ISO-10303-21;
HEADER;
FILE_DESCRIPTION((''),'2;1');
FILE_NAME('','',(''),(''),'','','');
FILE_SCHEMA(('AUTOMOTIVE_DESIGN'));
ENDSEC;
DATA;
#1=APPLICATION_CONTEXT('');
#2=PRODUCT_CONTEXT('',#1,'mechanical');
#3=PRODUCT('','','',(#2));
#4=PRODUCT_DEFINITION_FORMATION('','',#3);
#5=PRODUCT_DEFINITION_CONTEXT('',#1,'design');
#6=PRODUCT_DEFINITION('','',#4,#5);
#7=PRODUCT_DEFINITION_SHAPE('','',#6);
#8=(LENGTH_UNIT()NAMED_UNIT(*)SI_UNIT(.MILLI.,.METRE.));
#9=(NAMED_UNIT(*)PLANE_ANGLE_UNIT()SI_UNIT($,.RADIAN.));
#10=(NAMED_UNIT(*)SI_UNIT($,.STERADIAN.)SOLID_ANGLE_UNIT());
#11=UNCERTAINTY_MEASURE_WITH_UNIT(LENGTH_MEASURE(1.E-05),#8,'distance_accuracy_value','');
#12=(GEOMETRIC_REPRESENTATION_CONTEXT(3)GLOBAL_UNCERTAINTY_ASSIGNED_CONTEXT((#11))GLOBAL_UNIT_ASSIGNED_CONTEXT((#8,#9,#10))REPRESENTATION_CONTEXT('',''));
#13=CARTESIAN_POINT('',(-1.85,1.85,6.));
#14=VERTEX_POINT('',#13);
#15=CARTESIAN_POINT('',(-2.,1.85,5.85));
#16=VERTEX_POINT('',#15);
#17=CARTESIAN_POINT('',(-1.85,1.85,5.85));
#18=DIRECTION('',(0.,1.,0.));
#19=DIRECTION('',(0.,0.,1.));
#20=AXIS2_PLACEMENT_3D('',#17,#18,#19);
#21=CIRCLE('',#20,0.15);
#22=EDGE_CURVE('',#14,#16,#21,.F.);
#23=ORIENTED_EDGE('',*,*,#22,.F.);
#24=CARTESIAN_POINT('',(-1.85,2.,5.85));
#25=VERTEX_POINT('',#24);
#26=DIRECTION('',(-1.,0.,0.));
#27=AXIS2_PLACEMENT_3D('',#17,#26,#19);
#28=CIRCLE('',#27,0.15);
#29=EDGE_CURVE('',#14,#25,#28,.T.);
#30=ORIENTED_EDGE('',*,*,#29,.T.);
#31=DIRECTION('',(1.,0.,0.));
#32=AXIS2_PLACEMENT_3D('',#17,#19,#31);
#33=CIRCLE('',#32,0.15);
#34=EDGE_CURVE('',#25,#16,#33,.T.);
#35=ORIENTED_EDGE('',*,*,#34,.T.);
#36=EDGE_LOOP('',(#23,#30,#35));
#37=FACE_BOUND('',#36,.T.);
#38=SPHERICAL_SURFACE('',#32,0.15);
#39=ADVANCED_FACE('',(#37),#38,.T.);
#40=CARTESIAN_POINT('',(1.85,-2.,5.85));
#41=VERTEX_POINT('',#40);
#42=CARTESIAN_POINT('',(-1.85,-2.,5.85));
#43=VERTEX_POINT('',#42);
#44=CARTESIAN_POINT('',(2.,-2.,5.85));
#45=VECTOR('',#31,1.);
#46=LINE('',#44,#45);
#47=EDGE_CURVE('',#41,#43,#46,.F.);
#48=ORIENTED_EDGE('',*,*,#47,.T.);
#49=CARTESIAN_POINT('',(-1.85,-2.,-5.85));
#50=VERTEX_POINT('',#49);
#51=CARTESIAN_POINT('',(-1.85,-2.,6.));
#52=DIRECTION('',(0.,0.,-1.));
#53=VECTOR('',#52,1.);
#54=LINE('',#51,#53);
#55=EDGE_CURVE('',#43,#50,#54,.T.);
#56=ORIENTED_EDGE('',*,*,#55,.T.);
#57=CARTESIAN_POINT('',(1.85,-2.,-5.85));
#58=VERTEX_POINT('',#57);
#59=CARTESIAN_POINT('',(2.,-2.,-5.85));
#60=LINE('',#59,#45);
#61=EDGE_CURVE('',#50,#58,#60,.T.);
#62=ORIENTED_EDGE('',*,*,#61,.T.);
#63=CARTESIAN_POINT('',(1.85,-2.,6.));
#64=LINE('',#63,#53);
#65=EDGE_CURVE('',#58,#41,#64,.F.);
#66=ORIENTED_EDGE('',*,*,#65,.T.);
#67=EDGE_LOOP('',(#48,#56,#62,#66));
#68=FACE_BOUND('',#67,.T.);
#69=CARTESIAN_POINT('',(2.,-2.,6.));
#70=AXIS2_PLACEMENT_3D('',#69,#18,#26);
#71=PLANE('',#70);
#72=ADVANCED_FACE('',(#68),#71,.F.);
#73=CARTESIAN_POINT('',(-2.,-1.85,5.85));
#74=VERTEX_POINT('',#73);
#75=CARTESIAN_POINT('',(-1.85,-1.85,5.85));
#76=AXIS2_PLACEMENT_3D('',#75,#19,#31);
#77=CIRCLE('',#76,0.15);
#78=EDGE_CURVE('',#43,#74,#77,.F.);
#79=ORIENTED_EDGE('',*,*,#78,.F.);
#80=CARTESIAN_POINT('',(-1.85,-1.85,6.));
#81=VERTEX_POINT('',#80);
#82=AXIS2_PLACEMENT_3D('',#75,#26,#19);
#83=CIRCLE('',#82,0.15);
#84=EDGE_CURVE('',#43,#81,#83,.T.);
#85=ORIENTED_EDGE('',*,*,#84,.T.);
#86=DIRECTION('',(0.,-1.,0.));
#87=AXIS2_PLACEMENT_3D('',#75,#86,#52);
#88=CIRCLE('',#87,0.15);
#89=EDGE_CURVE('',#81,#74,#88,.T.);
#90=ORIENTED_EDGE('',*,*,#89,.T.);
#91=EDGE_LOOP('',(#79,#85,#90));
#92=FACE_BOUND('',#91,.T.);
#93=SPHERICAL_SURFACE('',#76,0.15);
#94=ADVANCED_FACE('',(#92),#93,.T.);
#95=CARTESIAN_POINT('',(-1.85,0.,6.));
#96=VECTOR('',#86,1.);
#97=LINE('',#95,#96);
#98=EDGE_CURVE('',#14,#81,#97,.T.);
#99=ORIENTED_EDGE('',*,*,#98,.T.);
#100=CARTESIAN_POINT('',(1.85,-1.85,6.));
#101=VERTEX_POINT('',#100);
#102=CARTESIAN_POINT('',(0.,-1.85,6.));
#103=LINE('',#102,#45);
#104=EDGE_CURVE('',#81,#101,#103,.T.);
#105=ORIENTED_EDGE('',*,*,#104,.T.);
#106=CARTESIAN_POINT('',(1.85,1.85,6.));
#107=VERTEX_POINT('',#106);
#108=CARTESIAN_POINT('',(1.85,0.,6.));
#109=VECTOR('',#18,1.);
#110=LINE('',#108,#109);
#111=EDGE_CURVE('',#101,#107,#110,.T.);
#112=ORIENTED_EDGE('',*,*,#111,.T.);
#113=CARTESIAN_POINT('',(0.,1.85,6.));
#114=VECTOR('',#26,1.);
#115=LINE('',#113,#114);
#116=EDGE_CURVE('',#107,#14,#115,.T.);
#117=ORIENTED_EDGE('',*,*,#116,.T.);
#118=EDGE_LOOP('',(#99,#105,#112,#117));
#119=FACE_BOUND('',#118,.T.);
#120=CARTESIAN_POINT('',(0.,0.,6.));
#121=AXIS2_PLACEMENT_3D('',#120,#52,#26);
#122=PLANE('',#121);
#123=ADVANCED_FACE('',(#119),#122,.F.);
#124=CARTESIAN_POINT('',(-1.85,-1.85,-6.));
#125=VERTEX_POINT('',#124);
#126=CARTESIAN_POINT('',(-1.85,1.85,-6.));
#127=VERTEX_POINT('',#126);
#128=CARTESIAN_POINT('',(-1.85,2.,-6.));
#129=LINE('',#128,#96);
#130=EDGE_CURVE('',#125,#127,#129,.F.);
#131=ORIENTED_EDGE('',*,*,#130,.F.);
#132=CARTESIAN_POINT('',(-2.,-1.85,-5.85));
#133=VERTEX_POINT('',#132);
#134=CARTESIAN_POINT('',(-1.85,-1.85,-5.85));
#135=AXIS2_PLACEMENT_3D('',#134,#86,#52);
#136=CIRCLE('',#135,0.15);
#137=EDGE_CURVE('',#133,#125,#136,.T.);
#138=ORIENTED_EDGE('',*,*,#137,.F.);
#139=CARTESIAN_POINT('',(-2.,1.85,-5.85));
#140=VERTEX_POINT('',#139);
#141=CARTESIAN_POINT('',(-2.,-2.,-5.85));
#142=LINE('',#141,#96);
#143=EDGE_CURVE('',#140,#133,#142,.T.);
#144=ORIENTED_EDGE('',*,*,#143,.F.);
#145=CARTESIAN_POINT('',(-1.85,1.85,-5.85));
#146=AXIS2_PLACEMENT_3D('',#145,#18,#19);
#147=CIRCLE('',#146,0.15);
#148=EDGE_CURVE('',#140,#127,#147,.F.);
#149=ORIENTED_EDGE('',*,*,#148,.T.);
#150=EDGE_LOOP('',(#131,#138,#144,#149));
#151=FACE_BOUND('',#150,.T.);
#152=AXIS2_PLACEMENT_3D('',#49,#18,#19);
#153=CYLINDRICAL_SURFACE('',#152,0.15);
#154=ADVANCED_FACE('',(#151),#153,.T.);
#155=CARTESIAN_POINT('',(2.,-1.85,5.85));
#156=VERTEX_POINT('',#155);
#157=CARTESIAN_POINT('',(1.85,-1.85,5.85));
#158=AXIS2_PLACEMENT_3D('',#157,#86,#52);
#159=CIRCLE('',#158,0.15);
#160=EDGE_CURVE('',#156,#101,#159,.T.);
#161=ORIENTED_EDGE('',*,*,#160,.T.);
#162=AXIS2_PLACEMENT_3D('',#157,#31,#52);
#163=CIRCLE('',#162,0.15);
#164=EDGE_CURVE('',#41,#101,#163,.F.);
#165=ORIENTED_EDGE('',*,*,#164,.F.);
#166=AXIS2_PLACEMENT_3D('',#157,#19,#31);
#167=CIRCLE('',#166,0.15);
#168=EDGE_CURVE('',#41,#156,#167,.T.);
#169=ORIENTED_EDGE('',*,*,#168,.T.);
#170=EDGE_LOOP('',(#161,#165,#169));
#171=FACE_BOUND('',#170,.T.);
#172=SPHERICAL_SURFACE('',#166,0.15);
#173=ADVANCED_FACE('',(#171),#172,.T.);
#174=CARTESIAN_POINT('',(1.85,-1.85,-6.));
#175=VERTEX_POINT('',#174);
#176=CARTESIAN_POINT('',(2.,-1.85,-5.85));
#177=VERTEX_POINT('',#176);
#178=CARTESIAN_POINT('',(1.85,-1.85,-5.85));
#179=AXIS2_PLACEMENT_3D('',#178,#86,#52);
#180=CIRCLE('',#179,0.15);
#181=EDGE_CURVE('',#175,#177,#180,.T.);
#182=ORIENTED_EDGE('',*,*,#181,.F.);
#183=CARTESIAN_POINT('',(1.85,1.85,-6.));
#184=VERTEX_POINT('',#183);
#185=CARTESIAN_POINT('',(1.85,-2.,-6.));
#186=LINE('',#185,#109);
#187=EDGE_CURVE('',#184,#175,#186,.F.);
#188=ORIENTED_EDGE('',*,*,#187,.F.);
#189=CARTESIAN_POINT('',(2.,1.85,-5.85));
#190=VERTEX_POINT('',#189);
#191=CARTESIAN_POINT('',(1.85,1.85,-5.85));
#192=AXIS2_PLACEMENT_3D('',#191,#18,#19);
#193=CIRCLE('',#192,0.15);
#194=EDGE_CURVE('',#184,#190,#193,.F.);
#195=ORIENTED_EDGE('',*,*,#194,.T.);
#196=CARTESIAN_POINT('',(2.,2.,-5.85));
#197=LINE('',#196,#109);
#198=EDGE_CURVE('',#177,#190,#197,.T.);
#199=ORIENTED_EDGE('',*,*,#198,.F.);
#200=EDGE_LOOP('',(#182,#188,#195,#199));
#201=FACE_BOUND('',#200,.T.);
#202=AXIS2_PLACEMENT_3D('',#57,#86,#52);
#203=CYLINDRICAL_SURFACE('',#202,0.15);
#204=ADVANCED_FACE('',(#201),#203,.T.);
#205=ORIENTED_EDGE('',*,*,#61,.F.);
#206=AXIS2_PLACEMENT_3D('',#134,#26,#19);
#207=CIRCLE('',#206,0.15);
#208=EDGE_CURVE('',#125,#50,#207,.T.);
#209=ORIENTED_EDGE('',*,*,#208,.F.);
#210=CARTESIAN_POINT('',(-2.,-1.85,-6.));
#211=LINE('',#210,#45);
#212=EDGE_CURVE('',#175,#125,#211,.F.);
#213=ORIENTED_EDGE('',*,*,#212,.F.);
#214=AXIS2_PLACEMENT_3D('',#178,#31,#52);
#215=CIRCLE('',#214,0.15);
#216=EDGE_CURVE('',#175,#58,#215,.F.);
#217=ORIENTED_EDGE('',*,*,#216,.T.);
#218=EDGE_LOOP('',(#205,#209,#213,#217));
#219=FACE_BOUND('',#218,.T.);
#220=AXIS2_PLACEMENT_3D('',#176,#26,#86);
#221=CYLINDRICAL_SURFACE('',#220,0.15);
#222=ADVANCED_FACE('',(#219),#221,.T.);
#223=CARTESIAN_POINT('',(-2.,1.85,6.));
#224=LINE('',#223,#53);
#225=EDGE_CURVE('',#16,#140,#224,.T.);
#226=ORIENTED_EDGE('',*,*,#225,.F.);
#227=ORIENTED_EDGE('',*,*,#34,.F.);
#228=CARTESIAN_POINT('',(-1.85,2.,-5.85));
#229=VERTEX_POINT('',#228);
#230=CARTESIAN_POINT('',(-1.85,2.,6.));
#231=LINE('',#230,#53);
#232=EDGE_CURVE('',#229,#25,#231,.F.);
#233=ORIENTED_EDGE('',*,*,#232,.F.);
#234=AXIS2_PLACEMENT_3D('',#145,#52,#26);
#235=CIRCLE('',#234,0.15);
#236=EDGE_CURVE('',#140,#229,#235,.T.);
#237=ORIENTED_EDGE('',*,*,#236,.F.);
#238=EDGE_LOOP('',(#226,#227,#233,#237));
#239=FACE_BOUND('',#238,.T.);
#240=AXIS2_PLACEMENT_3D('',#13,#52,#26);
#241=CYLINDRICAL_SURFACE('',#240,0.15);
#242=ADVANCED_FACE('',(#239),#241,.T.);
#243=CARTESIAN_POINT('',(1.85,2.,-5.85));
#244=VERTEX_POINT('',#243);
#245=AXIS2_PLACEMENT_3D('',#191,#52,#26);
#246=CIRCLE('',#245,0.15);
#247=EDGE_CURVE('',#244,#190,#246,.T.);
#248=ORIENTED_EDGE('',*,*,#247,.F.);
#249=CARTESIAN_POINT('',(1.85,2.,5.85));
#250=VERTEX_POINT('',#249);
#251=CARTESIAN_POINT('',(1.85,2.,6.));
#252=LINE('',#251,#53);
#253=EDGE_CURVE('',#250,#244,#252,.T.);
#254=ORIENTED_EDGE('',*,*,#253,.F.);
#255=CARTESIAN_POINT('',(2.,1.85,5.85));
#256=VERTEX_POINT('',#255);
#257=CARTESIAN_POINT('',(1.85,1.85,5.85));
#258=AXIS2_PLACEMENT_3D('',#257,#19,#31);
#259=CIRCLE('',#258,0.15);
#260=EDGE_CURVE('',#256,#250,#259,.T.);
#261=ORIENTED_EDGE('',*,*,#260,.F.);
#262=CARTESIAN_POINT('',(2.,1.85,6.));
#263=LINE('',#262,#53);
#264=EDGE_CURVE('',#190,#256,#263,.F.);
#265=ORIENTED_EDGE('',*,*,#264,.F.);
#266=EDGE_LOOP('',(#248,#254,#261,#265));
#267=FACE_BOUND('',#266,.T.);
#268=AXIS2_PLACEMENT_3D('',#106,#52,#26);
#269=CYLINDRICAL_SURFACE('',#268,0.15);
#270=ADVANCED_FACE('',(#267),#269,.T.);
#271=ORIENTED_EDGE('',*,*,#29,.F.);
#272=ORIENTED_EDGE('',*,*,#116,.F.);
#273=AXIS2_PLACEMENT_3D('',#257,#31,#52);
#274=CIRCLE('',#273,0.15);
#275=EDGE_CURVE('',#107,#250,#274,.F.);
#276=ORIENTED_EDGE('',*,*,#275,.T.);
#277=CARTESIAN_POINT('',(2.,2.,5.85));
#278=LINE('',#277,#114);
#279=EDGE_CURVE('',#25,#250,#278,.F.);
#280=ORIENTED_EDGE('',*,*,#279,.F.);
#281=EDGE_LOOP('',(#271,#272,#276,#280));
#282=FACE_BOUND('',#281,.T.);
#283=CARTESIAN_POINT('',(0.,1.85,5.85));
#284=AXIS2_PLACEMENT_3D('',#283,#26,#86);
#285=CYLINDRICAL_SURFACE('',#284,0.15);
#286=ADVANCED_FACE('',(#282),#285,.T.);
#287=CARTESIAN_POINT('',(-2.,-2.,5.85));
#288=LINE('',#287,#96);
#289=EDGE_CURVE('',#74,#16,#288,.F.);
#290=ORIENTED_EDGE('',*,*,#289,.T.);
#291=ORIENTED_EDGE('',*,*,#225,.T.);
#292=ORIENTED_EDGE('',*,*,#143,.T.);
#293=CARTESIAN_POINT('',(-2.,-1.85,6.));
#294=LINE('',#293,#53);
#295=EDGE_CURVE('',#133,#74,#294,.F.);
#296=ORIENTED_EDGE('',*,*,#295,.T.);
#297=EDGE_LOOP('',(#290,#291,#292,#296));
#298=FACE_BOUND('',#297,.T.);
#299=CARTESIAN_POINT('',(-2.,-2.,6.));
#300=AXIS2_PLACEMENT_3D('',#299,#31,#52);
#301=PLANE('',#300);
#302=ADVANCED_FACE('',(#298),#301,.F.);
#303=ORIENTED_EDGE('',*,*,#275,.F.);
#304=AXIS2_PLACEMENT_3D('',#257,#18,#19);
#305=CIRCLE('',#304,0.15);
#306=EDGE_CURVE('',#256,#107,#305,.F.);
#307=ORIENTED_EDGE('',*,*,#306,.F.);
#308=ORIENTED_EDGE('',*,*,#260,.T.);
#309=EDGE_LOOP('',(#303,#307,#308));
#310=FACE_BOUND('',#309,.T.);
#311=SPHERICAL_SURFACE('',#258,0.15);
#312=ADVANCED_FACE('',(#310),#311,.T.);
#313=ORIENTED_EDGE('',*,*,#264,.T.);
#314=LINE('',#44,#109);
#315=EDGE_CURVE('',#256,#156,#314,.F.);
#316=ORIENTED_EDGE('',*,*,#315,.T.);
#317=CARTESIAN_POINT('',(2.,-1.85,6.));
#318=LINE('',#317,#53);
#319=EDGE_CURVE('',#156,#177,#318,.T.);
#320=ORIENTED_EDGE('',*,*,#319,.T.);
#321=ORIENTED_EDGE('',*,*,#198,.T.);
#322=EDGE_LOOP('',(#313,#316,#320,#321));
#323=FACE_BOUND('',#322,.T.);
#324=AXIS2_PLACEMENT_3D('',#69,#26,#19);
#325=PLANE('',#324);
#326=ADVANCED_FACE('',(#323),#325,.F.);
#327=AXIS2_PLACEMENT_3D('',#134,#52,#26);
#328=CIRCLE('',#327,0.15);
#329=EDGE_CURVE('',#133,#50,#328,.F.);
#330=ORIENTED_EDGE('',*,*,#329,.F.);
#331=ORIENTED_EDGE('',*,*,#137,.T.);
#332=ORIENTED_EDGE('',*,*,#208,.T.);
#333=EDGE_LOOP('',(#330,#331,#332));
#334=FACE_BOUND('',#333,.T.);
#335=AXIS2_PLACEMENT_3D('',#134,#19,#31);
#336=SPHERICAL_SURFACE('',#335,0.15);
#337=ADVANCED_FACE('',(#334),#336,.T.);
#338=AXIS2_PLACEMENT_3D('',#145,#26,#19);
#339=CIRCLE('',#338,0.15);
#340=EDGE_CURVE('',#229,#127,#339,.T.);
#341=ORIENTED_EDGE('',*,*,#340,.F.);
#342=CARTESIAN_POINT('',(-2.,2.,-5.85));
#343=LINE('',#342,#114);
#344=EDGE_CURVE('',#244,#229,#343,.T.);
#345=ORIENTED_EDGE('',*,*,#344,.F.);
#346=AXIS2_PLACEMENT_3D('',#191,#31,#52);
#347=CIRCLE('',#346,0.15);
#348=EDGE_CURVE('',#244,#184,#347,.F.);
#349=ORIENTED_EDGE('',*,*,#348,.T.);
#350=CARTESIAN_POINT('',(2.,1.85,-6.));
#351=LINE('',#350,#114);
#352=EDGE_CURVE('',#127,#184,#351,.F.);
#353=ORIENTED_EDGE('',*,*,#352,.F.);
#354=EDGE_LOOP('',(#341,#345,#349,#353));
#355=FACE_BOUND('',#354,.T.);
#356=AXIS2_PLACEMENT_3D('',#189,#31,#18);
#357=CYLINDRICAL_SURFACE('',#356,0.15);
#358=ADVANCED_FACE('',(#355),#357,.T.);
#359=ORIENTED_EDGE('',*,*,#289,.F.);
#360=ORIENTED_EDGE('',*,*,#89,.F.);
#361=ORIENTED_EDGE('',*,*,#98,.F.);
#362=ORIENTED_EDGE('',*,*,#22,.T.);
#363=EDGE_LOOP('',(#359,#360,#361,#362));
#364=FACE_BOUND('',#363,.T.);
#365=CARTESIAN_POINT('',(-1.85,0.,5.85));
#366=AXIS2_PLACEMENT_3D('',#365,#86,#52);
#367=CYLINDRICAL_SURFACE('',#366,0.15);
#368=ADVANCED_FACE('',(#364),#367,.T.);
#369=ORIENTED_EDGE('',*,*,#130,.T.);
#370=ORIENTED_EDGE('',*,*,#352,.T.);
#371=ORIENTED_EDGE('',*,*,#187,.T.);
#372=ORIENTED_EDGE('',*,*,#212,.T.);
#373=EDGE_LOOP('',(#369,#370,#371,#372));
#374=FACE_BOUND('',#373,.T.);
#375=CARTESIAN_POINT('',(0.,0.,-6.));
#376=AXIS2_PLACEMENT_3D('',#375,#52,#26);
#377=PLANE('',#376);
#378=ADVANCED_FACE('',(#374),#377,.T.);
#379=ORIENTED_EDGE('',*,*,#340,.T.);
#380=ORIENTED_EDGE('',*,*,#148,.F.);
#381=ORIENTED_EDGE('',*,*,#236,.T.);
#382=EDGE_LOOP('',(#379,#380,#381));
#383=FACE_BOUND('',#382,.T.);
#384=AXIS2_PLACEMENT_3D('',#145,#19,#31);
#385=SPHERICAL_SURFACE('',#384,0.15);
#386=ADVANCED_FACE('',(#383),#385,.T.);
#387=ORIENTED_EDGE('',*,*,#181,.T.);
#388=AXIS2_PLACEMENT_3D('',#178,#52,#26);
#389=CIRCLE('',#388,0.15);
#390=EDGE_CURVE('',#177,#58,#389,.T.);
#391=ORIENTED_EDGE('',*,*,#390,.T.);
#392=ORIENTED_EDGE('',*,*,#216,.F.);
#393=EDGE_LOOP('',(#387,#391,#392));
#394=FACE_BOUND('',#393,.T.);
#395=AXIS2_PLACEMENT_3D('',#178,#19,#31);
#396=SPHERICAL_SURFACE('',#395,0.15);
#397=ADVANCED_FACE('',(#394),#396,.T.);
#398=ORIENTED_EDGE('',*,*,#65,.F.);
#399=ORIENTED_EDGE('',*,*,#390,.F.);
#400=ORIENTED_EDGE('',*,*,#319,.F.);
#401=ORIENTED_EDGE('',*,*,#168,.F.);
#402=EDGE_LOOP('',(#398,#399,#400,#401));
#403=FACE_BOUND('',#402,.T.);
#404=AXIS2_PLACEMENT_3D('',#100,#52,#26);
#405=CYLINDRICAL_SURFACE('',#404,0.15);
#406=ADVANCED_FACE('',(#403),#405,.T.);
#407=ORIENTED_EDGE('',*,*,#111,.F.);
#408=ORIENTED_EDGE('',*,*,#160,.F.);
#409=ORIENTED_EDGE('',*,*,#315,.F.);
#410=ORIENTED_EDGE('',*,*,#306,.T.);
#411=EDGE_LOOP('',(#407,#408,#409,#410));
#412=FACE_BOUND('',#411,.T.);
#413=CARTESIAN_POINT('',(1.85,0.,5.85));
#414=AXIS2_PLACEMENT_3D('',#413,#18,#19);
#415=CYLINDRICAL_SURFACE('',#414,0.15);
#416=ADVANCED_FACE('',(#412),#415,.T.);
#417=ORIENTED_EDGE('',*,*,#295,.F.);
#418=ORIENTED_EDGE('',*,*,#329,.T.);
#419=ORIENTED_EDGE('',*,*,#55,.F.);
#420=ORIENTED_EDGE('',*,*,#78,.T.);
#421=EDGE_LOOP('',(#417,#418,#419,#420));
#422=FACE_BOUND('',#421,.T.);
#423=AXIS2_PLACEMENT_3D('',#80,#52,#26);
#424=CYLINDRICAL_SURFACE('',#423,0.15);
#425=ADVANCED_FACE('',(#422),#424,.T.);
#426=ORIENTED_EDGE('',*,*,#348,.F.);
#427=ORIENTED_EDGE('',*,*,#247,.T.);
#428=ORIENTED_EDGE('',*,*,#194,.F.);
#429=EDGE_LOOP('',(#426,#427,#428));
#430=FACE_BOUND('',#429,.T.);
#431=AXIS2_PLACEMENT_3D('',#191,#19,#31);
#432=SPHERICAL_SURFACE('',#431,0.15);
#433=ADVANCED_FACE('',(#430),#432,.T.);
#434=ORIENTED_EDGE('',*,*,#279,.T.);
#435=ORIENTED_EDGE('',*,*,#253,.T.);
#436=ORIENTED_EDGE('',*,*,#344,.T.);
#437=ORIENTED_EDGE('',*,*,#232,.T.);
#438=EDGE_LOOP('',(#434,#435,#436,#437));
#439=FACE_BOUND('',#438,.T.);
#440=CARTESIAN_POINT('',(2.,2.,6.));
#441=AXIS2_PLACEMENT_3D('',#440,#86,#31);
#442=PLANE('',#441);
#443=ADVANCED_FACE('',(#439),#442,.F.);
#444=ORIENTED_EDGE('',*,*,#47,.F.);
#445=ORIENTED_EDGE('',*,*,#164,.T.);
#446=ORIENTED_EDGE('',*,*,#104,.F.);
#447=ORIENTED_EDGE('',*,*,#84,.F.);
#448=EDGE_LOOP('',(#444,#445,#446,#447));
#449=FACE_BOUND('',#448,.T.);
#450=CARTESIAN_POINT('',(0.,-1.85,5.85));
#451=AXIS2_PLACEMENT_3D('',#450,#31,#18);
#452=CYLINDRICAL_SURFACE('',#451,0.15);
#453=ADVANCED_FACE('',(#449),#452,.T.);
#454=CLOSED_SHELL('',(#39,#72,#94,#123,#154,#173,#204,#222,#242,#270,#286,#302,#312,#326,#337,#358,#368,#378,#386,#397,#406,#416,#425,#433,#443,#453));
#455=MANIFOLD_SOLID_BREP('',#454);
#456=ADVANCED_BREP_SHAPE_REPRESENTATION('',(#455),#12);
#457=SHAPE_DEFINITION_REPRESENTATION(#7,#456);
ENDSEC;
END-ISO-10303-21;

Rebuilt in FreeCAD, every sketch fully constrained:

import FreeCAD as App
import Part
import Sketcher

V = App.Vector


def add_polygon(sketch, points):
    """Adds a closed chain of lines whose ends are joined by coincident constraints."""
    first, n = sketch.GeometryCount, len(points)
    for a, b in zip(points, points[1:] + points[:1]):
        sketch.addGeometry(Part.LineSegment(App.Vector(*a, 0), App.Vector(*b, 0)), False)
    for i in range(n):
        sketch.addConstraint(Sketcher.Constraint("Coincident", first + i, 2, first + (i + 1) % n, 1))

doc = App.newDocument("Part")
body = doc.addObject("PartDesign::Body", "Body")

# Sketch on XY plane
sketch1 = doc.addObject("Sketcher::SketchObject", "Sketch")
body.addObject(sketch1)
sketch1.AttachmentSupport = (doc.XY_Plane, [""])
sketch1.MapMode = "FlatFace"
add_polygon(sketch1, [(-2, 2), (-2, -2), (2, -2), (2, 2)])  # lines 0-3
sketch1.addConstraint(Sketcher.Constraint("Vertical", 0))
sketch1.addConstraint(Sketcher.Constraint("Horizontal", 1))
sketch1.addConstraint(Sketcher.Constraint("Vertical", 2))
sketch1.addConstraint(Sketcher.Constraint("Horizontal", 3))
sketch1.addConstraint(Sketcher.Constraint("Symmetric", 0, 2, 2, 2, -1, 1))
sketch1.addConstraint(Sketcher.Constraint("Equal", 3, 0))
sketch1.addConstraint(Sketcher.Constraint("DistanceX", 1, 1, 1, 2, 4.0))
pad1 = doc.addObject("PartDesign::Pad", "Pad")
body.addObject(pad1)
pad1.Profile = sketch1
pad1.Type = "TwoLengths"
pad1.Length = 6
pad1.Length2 = 6
doc.recompute()

fillet = doc.addObject("PartDesign::Fillet", "Fillet")
body.addObject(fillet)
fillet.Base = (pad1, ["Edge1"])
fillet.UseAllEdges = True
fillet.Radius = 0.15

doc.recompute()
